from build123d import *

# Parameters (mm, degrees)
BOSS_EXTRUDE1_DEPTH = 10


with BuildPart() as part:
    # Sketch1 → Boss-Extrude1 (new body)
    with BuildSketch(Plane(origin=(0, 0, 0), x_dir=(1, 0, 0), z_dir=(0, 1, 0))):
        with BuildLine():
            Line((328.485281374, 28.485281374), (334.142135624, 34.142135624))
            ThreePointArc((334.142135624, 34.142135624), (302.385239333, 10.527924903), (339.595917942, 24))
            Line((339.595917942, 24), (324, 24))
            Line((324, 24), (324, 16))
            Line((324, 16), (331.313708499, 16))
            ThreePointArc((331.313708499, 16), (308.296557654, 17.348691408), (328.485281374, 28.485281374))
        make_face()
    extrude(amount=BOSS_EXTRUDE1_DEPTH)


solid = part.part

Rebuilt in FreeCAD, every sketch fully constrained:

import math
import FreeCAD as App
import Part
import Sketcher

V = App.Vector
Q = App.Units.Quantity

doc = App.newDocument("Part")
body = doc.addObject("PartDesign::Body", "Body")

sketch1 = body.newObject("Sketcher::SketchObject", "Sketch")
sketch1.AttachmentSupport = (doc.getObject("XZ_Plane"), [""])
sketch1.MapMode = "FlatFace"
sketch1.addGeometry(Part.LineSegment(V(328.485281, -28.485281, 0), V(334.142136, -34.142136, 0)), False)
sketch1.addGeometry(Part.ArcOfCircle(Part.Circle(V(320, -20, 0), V(0, 0, 1), 20), math.radians(-11.536959), math.radians(315)), False)
sketch1.addGeometry(Part.LineSegment(V(339.595918, -24, 0), V(324, -24, 0)), False)
sketch1.addGeometry(Part.LineSegment(V(324, -24, 0), V(324, -16, 0)), False)
sketch1.addGeometry(Part.LineSegment(V(324, -16, 0), V(331.313708, -16, 0)), False)
sketch1.addGeometry(Part.ArcOfCircle(Part.Circle(V(320, -20, 0), V(0, 0, 1), 12), math.radians(19.471221), math.radians(315)), False)
sketch1.addConstraint(Sketcher.Constraint("Coincident", 0, 2, 1, 2))
sketch1.addConstraint(Sketcher.Constraint("Coincident", 1, 1, 2, 1))
sketch1.addConstraint(Sketcher.Constraint("Coincident", 2, 2, 3, 1))
sketch1.addConstraint(Sketcher.Constraint("Coincident", 3, 2, 4, 1))
sketch1.addConstraint(Sketcher.Constraint("Coincident", 4, 2, 5, 1))
sketch1.addConstraint(Sketcher.Constraint("Coincident", 5, 2, 0, 1))
sketch1.addConstraint(Sketcher.Constraint("Horizontal", 2))
sketch1.addConstraint(Sketcher.Constraint("Vertical", 3))
sketch1.addConstraint(Sketcher.Constraint("Horizontal", 4))
sketch1.addConstraint(Sketcher.Constraint("Coincident", 5, 3, 1, 3))
sketch1.addConstraint(Sketcher.Constraint("Radius", 1, Q("20 mm")))
sketch1.addConstraint(Sketcher.Constraint("Radius", 5, Q("12 mm")))
sketch1.addConstraint(Sketcher.Constraint("DistanceY", 3, 1, 3, 2, Q("8 mm")))
sketch1.addConstraint(Sketcher.Constraint("Angle", 0, Q("-45 deg")))
sketch1.addConstraint(Sketcher.Constraint("DistanceX", -1, 1, 1, 3, Q("320 mm")))
sketch1.addConstraint(Sketcher.Constraint("DistanceY", 1, 3, -1, 1, Q("20 mm")))
sketch1.addConstraint(Sketcher.Constraint("DistanceY", 1, 1, -1, 1, Q("24 mm")))
sketch1.addConstraint(Sketcher.Constraint("DistanceX", -1, 1, 2, 2, Q("324 mm")))
sketch1.addConstraint(Sketcher.Constraint("DistanceX", -1, 1, 5, 2, Q("328.485281 mm")))
pad1 = body.newObject("PartDesign::Pad", "Pad")
pad1.Profile = sketch1
pad1.Length = 10
pad1.Reversed = True

doc.recompute()
